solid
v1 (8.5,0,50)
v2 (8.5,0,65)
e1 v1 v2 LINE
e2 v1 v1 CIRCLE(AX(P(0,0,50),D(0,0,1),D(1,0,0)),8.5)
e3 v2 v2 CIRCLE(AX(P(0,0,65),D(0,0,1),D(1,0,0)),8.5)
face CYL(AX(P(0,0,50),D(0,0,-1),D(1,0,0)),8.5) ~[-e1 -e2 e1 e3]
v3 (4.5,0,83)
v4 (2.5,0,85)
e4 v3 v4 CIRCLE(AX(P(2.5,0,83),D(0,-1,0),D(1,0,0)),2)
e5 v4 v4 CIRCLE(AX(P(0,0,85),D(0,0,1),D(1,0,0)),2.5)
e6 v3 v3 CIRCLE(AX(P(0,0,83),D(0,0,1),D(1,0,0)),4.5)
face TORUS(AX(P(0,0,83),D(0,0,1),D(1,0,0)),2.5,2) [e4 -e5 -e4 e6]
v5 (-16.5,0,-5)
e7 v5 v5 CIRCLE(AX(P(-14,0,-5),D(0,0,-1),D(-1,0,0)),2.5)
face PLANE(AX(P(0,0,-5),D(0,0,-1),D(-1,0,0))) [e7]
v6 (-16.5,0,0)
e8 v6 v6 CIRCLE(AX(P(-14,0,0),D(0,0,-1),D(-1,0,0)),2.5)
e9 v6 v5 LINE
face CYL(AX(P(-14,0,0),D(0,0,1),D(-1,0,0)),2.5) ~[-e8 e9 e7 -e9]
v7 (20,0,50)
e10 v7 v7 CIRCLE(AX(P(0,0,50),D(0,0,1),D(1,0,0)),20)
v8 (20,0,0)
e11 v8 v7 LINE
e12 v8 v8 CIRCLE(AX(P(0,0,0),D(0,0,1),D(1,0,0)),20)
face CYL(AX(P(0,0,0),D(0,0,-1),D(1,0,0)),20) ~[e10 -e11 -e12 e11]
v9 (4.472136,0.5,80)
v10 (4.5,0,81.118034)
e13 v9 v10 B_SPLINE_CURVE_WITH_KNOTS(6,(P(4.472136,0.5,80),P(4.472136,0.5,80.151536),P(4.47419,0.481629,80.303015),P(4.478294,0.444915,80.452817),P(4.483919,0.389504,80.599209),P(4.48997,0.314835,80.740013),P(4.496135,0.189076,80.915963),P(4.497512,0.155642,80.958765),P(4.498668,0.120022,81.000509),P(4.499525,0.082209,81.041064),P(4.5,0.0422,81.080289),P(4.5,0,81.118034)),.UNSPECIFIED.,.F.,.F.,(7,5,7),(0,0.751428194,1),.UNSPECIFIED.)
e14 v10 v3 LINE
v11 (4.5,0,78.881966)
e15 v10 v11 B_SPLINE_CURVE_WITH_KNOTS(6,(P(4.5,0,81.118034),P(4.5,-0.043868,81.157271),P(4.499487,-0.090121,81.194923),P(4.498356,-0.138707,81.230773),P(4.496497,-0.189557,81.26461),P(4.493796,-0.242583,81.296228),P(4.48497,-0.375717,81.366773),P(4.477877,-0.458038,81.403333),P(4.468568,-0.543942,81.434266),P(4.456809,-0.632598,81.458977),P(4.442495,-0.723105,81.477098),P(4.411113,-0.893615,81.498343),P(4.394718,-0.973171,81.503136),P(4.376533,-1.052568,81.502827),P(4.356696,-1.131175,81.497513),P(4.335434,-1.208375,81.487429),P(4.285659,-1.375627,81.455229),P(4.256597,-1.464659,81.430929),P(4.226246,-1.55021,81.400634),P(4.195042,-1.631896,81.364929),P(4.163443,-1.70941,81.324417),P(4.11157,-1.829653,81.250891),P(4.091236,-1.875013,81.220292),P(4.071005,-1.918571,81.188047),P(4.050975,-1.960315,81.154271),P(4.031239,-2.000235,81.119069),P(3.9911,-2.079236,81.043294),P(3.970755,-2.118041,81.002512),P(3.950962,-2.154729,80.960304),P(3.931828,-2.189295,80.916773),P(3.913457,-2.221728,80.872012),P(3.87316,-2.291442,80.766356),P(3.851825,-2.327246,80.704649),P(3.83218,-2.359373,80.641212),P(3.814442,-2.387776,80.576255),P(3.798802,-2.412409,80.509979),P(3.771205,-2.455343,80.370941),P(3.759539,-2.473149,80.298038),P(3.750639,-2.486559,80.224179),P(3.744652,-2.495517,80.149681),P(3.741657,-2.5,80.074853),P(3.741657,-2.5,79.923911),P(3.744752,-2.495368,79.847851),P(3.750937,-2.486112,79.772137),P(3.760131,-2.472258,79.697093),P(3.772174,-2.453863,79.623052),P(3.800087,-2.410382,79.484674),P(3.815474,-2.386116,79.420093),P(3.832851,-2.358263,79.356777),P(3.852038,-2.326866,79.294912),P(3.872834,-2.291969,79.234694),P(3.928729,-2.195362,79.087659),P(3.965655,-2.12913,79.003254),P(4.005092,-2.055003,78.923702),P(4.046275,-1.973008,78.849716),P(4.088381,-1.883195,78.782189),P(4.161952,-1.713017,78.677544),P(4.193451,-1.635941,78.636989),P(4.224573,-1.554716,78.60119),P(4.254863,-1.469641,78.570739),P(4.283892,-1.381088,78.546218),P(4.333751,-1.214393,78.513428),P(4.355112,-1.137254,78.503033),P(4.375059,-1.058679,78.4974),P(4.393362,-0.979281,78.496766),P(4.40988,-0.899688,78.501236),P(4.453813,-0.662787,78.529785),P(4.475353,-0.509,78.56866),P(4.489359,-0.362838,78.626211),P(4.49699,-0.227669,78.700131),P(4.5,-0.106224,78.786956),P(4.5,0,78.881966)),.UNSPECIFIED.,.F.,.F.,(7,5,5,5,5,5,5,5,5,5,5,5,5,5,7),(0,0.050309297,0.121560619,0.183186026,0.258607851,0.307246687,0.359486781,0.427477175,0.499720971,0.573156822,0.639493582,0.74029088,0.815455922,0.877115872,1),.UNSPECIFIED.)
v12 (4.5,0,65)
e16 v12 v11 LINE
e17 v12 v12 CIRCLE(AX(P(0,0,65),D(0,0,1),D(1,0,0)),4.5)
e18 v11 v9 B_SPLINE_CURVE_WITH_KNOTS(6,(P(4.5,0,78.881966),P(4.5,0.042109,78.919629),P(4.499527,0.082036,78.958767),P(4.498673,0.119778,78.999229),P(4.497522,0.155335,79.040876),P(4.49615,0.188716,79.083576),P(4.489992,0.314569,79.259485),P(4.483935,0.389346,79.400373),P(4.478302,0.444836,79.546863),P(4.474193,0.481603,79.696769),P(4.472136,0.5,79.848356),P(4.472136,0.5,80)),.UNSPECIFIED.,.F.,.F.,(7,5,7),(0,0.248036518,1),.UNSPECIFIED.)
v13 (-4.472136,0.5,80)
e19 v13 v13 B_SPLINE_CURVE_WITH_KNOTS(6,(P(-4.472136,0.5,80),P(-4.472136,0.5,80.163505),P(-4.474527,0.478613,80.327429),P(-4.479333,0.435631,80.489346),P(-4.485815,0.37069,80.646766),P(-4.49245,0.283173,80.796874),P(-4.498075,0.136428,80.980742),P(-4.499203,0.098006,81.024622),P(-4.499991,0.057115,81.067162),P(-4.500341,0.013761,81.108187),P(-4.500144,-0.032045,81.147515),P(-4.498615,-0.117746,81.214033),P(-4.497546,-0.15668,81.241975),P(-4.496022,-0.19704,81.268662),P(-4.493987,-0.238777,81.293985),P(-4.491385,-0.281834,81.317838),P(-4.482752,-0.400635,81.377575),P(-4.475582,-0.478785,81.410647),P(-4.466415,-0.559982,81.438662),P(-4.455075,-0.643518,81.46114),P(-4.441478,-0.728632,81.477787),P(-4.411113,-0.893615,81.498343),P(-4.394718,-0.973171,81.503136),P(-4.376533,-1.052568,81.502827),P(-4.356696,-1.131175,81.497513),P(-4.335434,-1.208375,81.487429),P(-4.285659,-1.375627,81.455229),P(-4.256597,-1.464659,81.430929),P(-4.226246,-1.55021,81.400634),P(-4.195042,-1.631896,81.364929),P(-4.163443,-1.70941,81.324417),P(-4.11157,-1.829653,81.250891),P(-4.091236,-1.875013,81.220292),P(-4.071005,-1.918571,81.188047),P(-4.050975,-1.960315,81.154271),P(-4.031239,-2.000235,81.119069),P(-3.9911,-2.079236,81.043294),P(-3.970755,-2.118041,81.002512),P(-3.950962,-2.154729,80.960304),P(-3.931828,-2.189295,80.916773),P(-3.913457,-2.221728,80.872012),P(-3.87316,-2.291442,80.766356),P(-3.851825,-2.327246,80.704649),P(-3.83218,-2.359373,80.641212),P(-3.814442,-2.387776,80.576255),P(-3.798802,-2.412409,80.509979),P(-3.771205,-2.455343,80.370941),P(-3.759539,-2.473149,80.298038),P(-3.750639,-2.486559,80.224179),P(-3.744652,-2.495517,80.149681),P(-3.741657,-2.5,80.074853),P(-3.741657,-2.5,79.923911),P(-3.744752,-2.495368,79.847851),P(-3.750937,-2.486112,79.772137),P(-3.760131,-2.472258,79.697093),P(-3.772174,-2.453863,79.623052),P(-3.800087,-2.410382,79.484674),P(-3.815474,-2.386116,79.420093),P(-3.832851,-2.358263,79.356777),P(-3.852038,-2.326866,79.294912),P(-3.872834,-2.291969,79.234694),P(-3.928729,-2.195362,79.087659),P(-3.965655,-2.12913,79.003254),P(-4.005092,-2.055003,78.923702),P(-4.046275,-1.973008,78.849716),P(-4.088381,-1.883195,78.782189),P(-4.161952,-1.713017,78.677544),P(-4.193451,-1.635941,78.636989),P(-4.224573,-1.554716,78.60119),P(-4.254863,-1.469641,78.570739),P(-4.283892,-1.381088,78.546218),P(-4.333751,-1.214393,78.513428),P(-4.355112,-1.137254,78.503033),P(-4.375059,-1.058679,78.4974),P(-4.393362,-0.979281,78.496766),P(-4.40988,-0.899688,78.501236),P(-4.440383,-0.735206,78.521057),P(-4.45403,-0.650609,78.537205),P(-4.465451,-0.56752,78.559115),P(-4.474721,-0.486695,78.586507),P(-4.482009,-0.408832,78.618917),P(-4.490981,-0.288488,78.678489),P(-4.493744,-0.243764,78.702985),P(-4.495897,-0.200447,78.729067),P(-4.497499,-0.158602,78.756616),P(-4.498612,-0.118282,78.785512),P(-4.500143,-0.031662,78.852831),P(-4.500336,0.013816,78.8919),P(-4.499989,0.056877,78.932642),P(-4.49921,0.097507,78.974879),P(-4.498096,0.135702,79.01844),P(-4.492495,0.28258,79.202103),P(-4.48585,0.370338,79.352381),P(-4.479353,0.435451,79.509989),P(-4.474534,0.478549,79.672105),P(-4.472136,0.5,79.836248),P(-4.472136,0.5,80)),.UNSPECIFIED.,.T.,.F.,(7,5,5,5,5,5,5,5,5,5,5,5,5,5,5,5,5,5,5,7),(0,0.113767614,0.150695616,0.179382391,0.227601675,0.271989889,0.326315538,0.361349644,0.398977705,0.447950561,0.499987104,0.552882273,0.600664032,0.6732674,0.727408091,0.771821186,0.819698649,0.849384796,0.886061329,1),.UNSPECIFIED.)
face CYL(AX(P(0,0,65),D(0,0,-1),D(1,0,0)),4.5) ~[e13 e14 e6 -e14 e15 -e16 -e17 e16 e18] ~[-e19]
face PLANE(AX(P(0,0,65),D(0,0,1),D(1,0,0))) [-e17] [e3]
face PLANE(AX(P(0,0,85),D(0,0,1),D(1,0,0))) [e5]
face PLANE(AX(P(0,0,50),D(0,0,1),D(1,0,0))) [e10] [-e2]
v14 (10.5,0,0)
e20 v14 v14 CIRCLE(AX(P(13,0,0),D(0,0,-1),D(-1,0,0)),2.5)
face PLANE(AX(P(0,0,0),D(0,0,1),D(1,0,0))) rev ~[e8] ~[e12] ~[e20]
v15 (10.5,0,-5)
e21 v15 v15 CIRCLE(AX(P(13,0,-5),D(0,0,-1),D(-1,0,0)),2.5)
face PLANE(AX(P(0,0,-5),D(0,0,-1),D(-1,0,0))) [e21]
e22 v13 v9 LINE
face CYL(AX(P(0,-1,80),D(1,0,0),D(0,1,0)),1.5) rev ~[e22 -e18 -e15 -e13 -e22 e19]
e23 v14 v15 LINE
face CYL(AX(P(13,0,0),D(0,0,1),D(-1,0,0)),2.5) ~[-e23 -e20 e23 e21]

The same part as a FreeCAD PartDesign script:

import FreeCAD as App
import Part
import Sketcher
from FreeCAD import Vector
Q = App.Units.Quantity


def edges_at(feature, points):
    """Names of the edges that pass closest to the given points."""
    edges = feature.Shape.Edges
    near = lambda p: min(range(len(edges)), key=lambda i: edges[i].distToShape(Part.Vertex(*p))[0])
    return sorted({f"Edge{near(p) + 1}" for p in points})

doc = App.newDocument("Part")
params = doc.addObject("Spreadsheet::Sheet", "Params")
for row, (alias, value) in enumerate([
    ("sketch1_diameter", "40 mm"),
    ("pad1_length", "50 mm"),
    ("sketch2_diameter", "17 mm"),
    ("pad2_length", "15 mm"),
    ("sketch3_diameter", "9 mm"),
    ("pad3_length", "20 mm"),
    ("sketch4_diameter", "3 mm"),
    ("fillet_radius", "2 mm"),
    ("sketch5_diameter", "5 mm"),
    ("pad4_length", "5 mm"),
], start=1):
    params.set(f"A{row}", alias)
    params.set(f"B{row}", "=" + value)
    params.setAlias(f"B{row}", alias)

body = doc.addObject("PartDesign::Body", "Body")

sketch1 = body.newObject("Sketcher::SketchObject", "Sketch")
sketch1.AttachmentSupport = (doc.getObject("XY_Plane"), [""])
sketch1.MapMode = "FlatFace"
sketch1.addGeometry(Part.Circle(Vector(0, 0, 0), Vector(0, 0, 1), 20), False)
sketch1.addConstraint([
    Sketcher.Constraint("Coincident", 0, 3, -1, 1),
    Sketcher.Constraint("Diameter", 0, Q("40 mm")),
])
sketch1.setExpression("Constraints[1]", "Params.sketch1_diameter")
pad1 = body.newObject("PartDesign::Pad", "Pad")
pad1.Profile = sketch1
pad1.setExpression("Length", "Params.pad1_length")

sketch2 = body.newObject("Sketcher::SketchObject", "Sketch001")
sketch2.AttachmentSupport = (doc.getObject("XY_Plane"), [""])
sketch2.MapMode = "FlatFace"
sketch2.AttachmentOffset = App.Placement(Vector(0, 0, 50), App.Rotation())
sketch2.addGeometry(Part.Circle(Vector(0, 0, 0), Vector(0, 0, 1), 8.5), False)
sketch2.addConstraint([
    Sketcher.Constraint("Coincident", 0, 3, -1, 1),
    Sketcher.Constraint("Diameter", 0, Q("17 mm")),
])
sketch2.setExpression("Constraints[1]", "Params.sketch2_diameter")
pad2 = body.newObject("PartDesign::Pad", "Pad001")
pad2.Profile = sketch2
pad2.setExpression("Length", "Params.pad2_length")

sketch3 = body.newObject("Sketcher::SketchObject", "Sketch002")
sketch3.AttachmentSupport = (doc.getObject("XY_Plane"), [""])
sketch3.MapMode = "FlatFace"
sketch3.AttachmentOffset = App.Placement(Vector(0, 0, 65), App.Rotation())
sketch3.addGeometry(Part.Circle(Vector(0, 0, 0), Vector(0, 0, 1), 4.5), False)
sketch3.addConstraint([
    Sketcher.Constraint("Coincident", 0, 3, -1, 1),
    Sketcher.Constraint("Diameter", 0, Q("9 mm")),
])
sketch3.setExpression("Constraints[1]", "Params.sketch3_diameter")
pad3 = body.newObject("PartDesign::Pad", "Pad002")
pad3.Profile = sketch3
pad3.setExpression("Length", "Params.pad3_length")

sketch4 = body.newObject("Sketcher::SketchObject", "Sketch003")
sketch4.AttachmentSupport = (doc.getObject("YZ_Plane"), [""])
sketch4.MapMode = "FlatFace"
sketch4.addGeometry(Part.Circle(Vector(-1, 80, 0), Vector(0, 0, 1), 1.5), False)
sketch4.addConstraint([
    Sketcher.Constraint("Diameter", 0, Q("3 mm")),
    Sketcher.Constraint("DistanceX", 0, 3, -1, 1, Q("1 mm")),
    Sketcher.Constraint("DistanceY", -1, 1, 0, 3, Q("80 mm")),
])
sketch4.setExpression("Constraints[0]", "Params.sketch4_diameter")
pocket1 = body.newObject("PartDesign::Pocket", "Pocket")
pocket1.Profile = sketch4
pocket1.Type = "ThroughAll"
pocket1.Midplane = True
doc.recompute()

fillet = body.newObject("PartDesign::Fillet", "Fillet")
fillet.Base = (pocket1, edges_at(pocket1, [(-4.5, 0, 85)]))
fillet.setExpression("Radius", "Params.fillet_radius")

sketch5 = body.newObject("Sketcher::SketchObject", "Sketch004")
sketch5.AttachmentSupport = (doc.getObject("XY_Plane"), [""])
sketch5.MapMode = "FlatFace"
sketch5.addGeometry([
    Part.Circle(Vector(-14, 0, 0), Vector(0, 0, 1), 2.5),
    Part.Circle(Vector(13, 0, 0), Vector(0, 0, 1), 2.5),
], False)
sketch5.addConstraint([
    Sketcher.Constraint("Equal", 0, 1),
    Sketcher.Constraint("PointOnObject", 0, 3, -1),
    Sketcher.Constraint("PointOnObject", 1, 3, -1),
    Sketcher.Constraint("Diameter", 0, Q("5 mm")),
    Sketcher.Constraint("DistanceX", 0, 3, -1, 1, Q("14 mm")),
    Sketcher.Constraint("DistanceX", -1, 1, 1, 3, Q("13 mm")),
])
sketch5.setExpression("Constraints[3]", "Params.sketch5_diameter")
pad4 = body.newObject("PartDesign::Pad", "Pad003")
pad4.Profile = sketch5
pad4.setExpression("Length", "Params.pad4_length")
pad4.Reversed = True

doc.recompute()
